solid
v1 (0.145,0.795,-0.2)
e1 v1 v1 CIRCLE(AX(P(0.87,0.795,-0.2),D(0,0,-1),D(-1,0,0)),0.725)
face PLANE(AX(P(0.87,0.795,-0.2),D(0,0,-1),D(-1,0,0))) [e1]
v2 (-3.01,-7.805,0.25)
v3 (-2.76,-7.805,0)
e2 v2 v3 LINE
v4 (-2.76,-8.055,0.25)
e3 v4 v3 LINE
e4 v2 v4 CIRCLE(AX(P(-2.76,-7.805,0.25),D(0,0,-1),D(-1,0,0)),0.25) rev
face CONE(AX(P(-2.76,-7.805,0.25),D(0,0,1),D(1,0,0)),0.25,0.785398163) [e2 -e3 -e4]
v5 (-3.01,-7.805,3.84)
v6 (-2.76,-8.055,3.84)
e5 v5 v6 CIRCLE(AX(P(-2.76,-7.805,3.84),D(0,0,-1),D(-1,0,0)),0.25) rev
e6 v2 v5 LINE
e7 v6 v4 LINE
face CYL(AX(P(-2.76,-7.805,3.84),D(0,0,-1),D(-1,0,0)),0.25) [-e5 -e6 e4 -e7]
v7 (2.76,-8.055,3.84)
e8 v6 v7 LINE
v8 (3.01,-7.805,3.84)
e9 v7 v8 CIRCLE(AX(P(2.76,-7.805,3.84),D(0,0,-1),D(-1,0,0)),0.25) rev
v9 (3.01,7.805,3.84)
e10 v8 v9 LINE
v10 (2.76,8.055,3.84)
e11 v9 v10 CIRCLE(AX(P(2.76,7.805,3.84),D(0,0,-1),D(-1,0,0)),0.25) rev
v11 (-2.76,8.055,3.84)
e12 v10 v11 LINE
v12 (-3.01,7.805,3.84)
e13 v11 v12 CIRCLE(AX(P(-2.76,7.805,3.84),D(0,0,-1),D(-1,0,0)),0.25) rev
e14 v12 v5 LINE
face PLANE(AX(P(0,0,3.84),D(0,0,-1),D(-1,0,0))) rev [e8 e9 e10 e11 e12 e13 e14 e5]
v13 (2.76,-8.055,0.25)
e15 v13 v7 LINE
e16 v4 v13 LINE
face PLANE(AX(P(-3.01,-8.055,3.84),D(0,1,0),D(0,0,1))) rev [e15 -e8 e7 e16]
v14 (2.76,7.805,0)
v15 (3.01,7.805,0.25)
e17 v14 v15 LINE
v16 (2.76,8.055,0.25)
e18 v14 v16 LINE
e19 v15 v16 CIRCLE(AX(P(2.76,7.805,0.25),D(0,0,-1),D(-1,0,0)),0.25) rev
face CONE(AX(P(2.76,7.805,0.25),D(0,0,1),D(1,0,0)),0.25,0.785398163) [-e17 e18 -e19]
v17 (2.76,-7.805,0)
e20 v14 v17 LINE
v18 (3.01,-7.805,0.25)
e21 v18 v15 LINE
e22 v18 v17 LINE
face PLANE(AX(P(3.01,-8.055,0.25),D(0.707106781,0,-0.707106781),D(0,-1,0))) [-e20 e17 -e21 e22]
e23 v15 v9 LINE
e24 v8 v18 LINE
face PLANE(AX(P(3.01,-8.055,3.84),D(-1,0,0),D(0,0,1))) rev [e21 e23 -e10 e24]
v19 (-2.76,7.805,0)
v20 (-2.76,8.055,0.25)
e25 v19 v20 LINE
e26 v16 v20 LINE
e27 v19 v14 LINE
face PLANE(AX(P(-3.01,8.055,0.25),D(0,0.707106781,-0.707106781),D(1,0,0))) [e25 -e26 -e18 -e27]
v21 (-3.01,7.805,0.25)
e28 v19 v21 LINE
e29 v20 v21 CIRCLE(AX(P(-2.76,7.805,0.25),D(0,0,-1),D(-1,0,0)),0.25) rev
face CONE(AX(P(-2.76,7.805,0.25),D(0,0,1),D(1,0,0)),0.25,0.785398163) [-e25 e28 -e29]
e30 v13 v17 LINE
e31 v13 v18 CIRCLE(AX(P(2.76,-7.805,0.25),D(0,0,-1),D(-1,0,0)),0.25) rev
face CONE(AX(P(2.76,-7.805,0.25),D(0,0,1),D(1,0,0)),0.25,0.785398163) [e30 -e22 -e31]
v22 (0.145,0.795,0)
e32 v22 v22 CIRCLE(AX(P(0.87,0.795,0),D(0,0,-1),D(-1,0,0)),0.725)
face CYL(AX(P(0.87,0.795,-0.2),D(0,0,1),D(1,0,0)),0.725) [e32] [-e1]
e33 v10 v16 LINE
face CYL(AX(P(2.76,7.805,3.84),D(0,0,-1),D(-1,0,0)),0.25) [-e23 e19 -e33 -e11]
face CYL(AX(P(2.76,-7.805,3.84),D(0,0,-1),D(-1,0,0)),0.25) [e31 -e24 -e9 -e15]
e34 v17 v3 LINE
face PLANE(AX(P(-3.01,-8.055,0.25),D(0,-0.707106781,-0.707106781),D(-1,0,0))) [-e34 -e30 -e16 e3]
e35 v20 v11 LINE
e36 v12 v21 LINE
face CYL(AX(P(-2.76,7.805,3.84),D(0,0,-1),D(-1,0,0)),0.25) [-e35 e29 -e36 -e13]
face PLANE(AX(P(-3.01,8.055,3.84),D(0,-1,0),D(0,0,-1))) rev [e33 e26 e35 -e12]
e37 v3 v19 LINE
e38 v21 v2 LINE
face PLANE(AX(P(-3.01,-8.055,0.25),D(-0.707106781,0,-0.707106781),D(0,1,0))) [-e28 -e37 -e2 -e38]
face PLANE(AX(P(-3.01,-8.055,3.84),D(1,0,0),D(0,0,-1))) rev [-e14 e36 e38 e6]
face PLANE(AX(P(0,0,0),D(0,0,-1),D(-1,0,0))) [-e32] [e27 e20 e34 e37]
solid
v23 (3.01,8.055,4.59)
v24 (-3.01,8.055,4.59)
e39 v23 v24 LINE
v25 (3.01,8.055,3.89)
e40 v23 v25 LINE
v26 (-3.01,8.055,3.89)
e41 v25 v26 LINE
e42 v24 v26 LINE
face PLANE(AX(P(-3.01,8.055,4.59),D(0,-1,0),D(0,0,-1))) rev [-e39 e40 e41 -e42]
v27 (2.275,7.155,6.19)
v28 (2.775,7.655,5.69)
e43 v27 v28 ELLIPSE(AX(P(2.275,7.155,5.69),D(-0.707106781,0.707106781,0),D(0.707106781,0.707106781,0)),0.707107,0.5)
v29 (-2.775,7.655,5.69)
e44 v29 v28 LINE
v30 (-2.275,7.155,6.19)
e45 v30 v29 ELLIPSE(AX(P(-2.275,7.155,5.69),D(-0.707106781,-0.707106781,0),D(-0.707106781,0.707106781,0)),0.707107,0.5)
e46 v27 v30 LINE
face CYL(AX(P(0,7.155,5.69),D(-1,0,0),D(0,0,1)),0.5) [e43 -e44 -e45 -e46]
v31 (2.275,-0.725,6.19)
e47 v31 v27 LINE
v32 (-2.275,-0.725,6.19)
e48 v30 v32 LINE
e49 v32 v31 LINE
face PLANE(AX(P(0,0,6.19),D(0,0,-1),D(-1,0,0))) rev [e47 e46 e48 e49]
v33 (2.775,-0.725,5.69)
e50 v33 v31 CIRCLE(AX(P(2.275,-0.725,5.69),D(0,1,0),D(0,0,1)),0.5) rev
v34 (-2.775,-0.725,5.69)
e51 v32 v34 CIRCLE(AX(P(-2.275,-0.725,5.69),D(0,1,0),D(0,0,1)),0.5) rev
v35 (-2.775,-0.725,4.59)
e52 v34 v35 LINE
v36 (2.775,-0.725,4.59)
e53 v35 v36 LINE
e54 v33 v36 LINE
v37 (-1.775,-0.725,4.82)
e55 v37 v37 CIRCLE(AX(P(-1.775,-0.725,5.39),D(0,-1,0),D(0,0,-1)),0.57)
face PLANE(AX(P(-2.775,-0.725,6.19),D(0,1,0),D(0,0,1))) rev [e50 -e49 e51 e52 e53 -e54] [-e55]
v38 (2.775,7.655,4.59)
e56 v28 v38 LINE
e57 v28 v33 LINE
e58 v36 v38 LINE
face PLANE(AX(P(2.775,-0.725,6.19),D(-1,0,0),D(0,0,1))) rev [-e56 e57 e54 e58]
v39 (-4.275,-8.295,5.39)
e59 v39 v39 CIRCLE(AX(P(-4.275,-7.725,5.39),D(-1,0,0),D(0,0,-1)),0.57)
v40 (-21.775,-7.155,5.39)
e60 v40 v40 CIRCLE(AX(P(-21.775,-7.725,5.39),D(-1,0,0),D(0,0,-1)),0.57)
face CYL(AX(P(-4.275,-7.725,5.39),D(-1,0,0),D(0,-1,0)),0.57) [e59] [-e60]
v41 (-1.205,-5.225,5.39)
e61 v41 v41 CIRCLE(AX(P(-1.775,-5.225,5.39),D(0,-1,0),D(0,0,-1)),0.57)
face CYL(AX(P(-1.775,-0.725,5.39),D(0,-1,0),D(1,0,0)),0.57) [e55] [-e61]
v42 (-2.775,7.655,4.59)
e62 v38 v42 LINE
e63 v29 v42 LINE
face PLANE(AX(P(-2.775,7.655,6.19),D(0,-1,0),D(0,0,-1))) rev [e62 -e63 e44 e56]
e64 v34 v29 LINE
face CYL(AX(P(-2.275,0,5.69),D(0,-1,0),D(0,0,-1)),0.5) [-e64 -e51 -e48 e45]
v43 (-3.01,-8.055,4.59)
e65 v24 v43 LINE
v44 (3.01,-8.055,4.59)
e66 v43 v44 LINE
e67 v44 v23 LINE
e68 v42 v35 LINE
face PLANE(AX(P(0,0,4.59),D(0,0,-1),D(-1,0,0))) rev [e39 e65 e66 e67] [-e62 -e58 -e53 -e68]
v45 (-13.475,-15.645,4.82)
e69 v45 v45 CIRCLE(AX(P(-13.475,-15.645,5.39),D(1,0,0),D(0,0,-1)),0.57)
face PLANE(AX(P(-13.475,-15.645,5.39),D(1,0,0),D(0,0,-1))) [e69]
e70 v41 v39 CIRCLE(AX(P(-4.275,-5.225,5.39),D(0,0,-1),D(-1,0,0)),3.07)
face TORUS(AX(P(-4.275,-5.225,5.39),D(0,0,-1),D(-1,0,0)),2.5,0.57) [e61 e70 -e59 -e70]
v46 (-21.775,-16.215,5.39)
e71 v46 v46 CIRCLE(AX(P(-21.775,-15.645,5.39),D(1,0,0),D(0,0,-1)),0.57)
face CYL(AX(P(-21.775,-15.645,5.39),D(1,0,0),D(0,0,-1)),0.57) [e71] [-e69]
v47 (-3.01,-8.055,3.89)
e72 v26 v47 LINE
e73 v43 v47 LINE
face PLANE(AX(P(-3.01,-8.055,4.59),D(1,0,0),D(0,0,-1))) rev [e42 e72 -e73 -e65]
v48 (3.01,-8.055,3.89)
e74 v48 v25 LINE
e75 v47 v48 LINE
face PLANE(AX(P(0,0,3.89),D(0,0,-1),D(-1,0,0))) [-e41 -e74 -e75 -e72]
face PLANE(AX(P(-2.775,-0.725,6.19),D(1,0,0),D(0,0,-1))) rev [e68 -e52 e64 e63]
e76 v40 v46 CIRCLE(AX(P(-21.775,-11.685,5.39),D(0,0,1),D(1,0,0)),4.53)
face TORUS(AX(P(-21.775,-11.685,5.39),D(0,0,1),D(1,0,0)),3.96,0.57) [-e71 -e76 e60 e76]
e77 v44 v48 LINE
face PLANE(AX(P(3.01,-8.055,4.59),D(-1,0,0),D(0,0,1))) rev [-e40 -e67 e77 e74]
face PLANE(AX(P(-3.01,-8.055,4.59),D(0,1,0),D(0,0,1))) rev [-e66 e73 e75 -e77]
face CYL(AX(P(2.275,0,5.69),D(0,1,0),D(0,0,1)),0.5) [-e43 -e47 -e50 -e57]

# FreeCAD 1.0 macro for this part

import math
import FreeCAD as App
import Part
import Sketcher
from FreeCAD import Vector
Q = App.Units.Quantity


def edges_at(feature, points):
    """Names of the edges that pass closest to the given points."""
    edges = feature.Shape.Edges
    near = lambda p: min(range(len(edges)), key=lambda i: edges[i].distToShape(Part.Vertex(*p))[0])
    return sorted({f"Edge{near(p) + 1}" for p in points})


def add_polygon(sketch, points):
    """Adds a closed chain of lines whose ends are joined by coincident constraints."""
    first, n = sketch.GeometryCount, len(points)
    for a, b in zip(points, points[1:] + points[:1]):
        sketch.addGeometry(Part.LineSegment(App.Vector(*a, 0), App.Vector(*b, 0)), False)
    for i in range(n):
        sketch.addConstraint(Sketcher.Constraint("Coincident", first + i, 2, first + (i + 1) % n, 1))

doc = App.newDocument("Part")
params = doc.addObject("Spreadsheet::Sheet", "Params")
for row, (alias, value) in enumerate([
    ("sketch1_width", "6.02 mm"),
    ("sketch1_height", "16.11 mm"),
    ("pad1_length", "3.84 mm"),
    ("sketch2_diameter", "1.45 mm"),
    ("pad2_length", "0.2 mm"),
    ("fillet_radius", "0.25 mm"),
    ("chamfer_size", "0.25 mm"),
    ("sketch3_width", "6.02 mm"),
    ("sketch3_height", "16.11 mm"),
    ("pad3_length", "0.7 mm"),
    ("sketch4_width", "5.55 mm"),
    ("sketch4_height", "8.38 mm"),
    ("pad4_length", "1.6 mm"),
    ("fillet2_radius", "0.5 mm"),
    ("sketch5_diameter", "1.14 mm"),
    ("sketch6_radius", "2.5 mm"),
    ("sketch6_radius2", "3.96 mm"),
    ("sketch6_width", "17.5 mm"),
    ("sketch6_width2", "8.3 mm"),
    ("sketch6_height", "4.5 mm"),
], start=1):
    params.set(f"A{row}", alias)
    params.set(f"B{row}", "=" + value)
    params.setAlias(f"B{row}", alias)

body = doc.addObject("PartDesign::Body", "Body")

sketch1 = doc.addObject("Sketcher::SketchObject", "Sketch")
body.addObject(sketch1)
sketch1.AttachmentSupport = (doc.XY_Plane, [""])
sketch1.MapMode = "FlatFace"
add_polygon(sketch1, [(-3, 8), (-3, -8), (3, -8), (3, 8)])
sketch1.addConstraint(Sketcher.Constraint("Vertical", 0))
sketch1.addConstraint(Sketcher.Constraint("Horizontal", 1))
sketch1.addConstraint(Sketcher.Constraint("Vertical", 2))
sketch1.addConstraint(Sketcher.Constraint("Horizontal", 3))
sketch1.addConstraint(Sketcher.Constraint("Symmetric", 0, 2, 2, 2, -1, 1))
sketch1.addConstraint(Sketcher.Constraint("DistanceX", 1, 1, 1, 2, Q("6.02 mm")))
sketch1.addConstraint(Sketcher.Constraint("DistanceY", 0, 2, 0, 1, Q("16.11 mm")))
sketch1.setExpression("Constraints[9]", "Params.sketch1_width")
sketch1.setExpression("Constraints[10]", "Params.sketch1_height")
pad1 = doc.addObject("PartDesign::Pad", "Pad")
body.addObject(pad1)
pad1.Profile = sketch1
pad1.setExpression("Length", "Params.pad1_length")

sketch2 = doc.addObject("Sketcher::SketchObject", "Sketch001")
body.addObject(sketch2)
sketch2.AttachmentSupport = (doc.XY_Plane, [""])
sketch2.MapMode = "FlatFace"
sketch2.addGeometry(Part.Circle(Vector(0.9, 0.8, 0), Vector(0, 0, 1), 0.7), False)
sketch2.addConstraint(Sketcher.Constraint("Diameter", 0, Q("1.45 mm")))
sketch2.addConstraint(Sketcher.Constraint("DistanceX", -1, 1, 0, 3, Q("0.87 mm")))
sketch2.addConstraint(Sketcher.Constraint("DistanceY", -1, 1, 0, 3, Q("0.795 mm")))
sketch2.setExpression("Constraints[0]", "Params.sketch2_diameter")
pad2 = doc.addObject("PartDesign::Pad", "Pad001")
body.addObject(pad2)
pad2.Profile = sketch2
pad2.setExpression("Length", "Params.pad2_length")
pad2.Reversed = True
doc.recompute()

fillet = doc.addObject("PartDesign::Fillet", "Fillet")
body.addObject(fillet)
fillet.Base = (pad2, edges_at(pad2, [
    (3.01, -8.055, 1.92),
    (-3.01, -8.055, 1.92),
    (-3.01, 8.055, 1.92),
    (3.01, 8.055, 1.92),
]))
fillet.setExpression("Radius", "Params.fillet_radius")
doc.recompute()

chamfer = doc.addObject("PartDesign::Chamfer", "Chamfer")
body.addObject(chamfer)
chamfer.Base = (fillet, edges_at(fillet, [
    (0, -8.055, 0),
    (3.01, 0, 0),
    (-3.01, 0, 0),
    (0, 8.055, 0),
    (-2.937, 7.982, 0),
    (2.937, 7.982, 0),
    (2.937, -7.982, 0),
    (-2.937, -7.982, 0),
]))
chamfer.setExpression("Size", "Params.chamfer_size")
body2 = doc.addObject("PartDesign::Body", "Body001")

sketch3 = doc.addObject("Sketcher::SketchObject", "Sketch002")
body2.addObject(sketch3)
sketch3.AttachmentSupport = (doc.getObject("XY_Plane001"), [""])
sketch3.MapMode = "FlatFace"
sketch3.AttachmentOffset = App.Placement(Vector(0, 0, 3.89), App.Rotation())
add_polygon(sketch3, [(-3, 8), (-3, -8), (3, -8), (3, 8)])
sketch3.addConstraint(Sketcher.Constraint("Vertical", 0))
sketch3.addConstraint(Sketcher.Constraint("Horizontal", 1))
sketch3.addConstraint(Sketcher.Constraint("Vertical", 2))
sketch3.addConstraint(Sketcher.Constraint("Horizontal", 3))
sketch3.addConstraint(Sketcher.Constraint("Symmetric", 0, 2, 2, 2, -1, 1))
sketch3.addConstraint(Sketcher.Constraint("DistanceX", 1, 1, 1, 2, Q("6.02 mm")))
sketch3.addConstraint(Sketcher.Constraint("DistanceY", 0, 2, 0, 1, Q("16.11 mm")))
sketch3.setExpression("Constraints[9]", "Params.sketch3_width")
sketch3.setExpression("Constraints[10]", "Params.sketch3_height")
pad3 = doc.addObject("PartDesign::Pad", "Pad002")
body2.addObject(pad3)
pad3.Profile = sketch3
pad3.setExpression("Length", "Params.pad3_length")

sketch4 = doc.addObject("Sketcher::SketchObject", "Sketch003")
body2.addObject(sketch4)
sketch4.AttachmentSupport = (doc.getObject("XY_Plane001"), [""])
sketch4.MapMode = "FlatFace"
sketch4.AttachmentOffset = App.Placement(Vector(0, 0, 4.59), App.Rotation())
add_polygon(sketch4, [(-3, 8), (-3, -1), (3, -1), (3, 8)])
sketch4.addConstraint(Sketcher.Constraint("Vertical", 0))
sketch4.addConstraint(Sketcher.Constraint("Horizontal", 1))
sketch4.addConstraint(Sketcher.Constraint("Vertical", 2))
sketch4.addConstraint(Sketcher.Constraint("Horizontal", 3))
sketch4.addConstraint(Sketcher.Constraint("DistanceX", 1, 1, 1, 2, Q("5.55 mm")))
sketch4.addConstraint(Sketcher.Constraint("DistanceY", 0, 2, 0, 1, Q("8.38 mm")))
sketch4.addConstraint(Sketcher.Constraint("DistanceX", 0, 2, -1, 1, Q("2.775 mm")))
sketch4.addConstraint(Sketcher.Constraint("DistanceY", 0, 2, -1, 1, Q("0.725 mm")))
sketch4.setExpression("Constraints[8]", "Params.sketch4_width")
sketch4.setExpression("Constraints[9]", "Params.sketch4_height")
pad4 = doc.addObject("PartDesign::Pad", "Pad003")
body2.addObject(pad4)
pad4.Profile = sketch4
pad4.setExpression("Length", "Params.pad4_length")
doc.recompute()

fillet2 = doc.addObject("PartDesign::Fillet", "Fillet001")
body2.addObject(fillet2)
fillet2.Base = (pad4, edges_at(pad4, [(2.775, 3.465, 6.19), (0, 7.655, 6.19), (-2.775, 3.465, 6.19)]))
fillet2.setExpression("Radius", "Params.fillet2_radius")

sketch5 = doc.addObject("Sketcher::SketchObject", "Sketch004")
body2.addObject(sketch5)
sketch5.AttachmentSupport = (doc.getObject("XZ_Plane001"), [""])
sketch5.MapMode = "FlatFace"
sketch5.AttachmentOffset = App.Placement(Vector(0, 0, 0.725), App.Rotation())
sketch5.addGeometry(Part.Circle(Vector(-1.8, 5.4, 0), Vector(0, 0, 1), 0.6), False)
sketch5.addConstraint(Sketcher.Constraint("Diameter", 0, Q("1.14 mm")))
sketch5.addConstraint(Sketcher.Constraint("DistanceY", -1, 1, 0, 3, Q("5.39 mm")))
sketch5.addConstraint(Sketcher.Constraint("DistanceX", 0, 3, -1, 1, Q("1.775 mm")))
sketch5.setExpression("Constraints[0]", "Params.sketch5_diameter")

sketch6 = doc.addObject("Sketcher::SketchObject", "Sketch005")
body2.addObject(sketch6)
sketch6.AttachmentSupport = (doc.getObject("XY_Plane001"), [""])
sketch6.MapMode = "FlatFace"
sketch6.AttachmentOffset = App.Placement(Vector(0, 0, 5.39), App.Rotation())
sketch6.addGeometry(Part.LineSegment(Vector(-1.8, -0.7, 0), Vector(-1.8, -5.2, 0)), False)
sketch6.addGeometry(Part.ArcOfCircle(Part.Circle(Vector(-4.3, -5.2, 0), Vector(0, 0, 1), 2.5), math.radians(-90), math.radians(0)), False)
sketch6.addGeometry(Part.LineSegment(Vector(-4.3, -7.7, 0), Vector(-21.8, -7.7, 0)), False)
sketch6.addGeometry(Part.ArcOfCircle(Part.Circle(Vector(-21.8, -11.7, 0), Vector(0, 0, 1), 4), math.radians(90), math.radians(270)), False)
sketch6.addGeometry(Part.LineSegment(Vector(-21.8, -15.6, 0), Vector(-13.5, -15.6, 0)), False)
sketch6.addConstraint(Sketcher.Constraint("Tangent", 0, 2, 1, 2))
sketch6.addConstraint(Sketcher.Constraint("Tangent", 1, 1, 2, 1))
sketch6.addConstraint(Sketcher.Constraint("Tangent", 2, 2, 3, 1))
sketch6.addConstraint(Sketcher.Constraint("Tangent", 3, 2, 4, 1))
sketch6.addConstraint(Sketcher.Constraint("Vertical", 0))
sketch6.addConstraint(Sketcher.Constraint("Horizontal", 2))
sketch6.addConstraint(Sketcher.Constraint("Horizontal", 4))
sketch6.addConstraint(Sketcher.Constraint("Radius", 1, Q("2.5 mm")))
sketch6.addConstraint(Sketcher.Constraint("Radius", 3, Q("3.96 mm")))
sketch6.addConstraint(Sketcher.Constraint("DistanceX", 2, 2, 2, 1, Q("17.5 mm")))
sketch6.addConstraint(Sketcher.Constraint("DistanceX", 4, 1, 4, 2, Q("8.3 mm")))
sketch6.addConstraint(Sketcher.Constraint("DistanceY", 0, 2, 0, 1, Q("4.5 mm")))
sketch6.addConstraint(Sketcher.Constraint("DistanceX", 1, 3, -1, 1, Q("4.275 mm")))
sketch6.addConstraint(Sketcher.Constraint("DistanceY", 1, 3, -1, 1, Q("5.225 mm")))
sketch6.setExpression("Constraints[7]", "Params.sketch6_radius")
sketch6.setExpression("Constraints[8]", "Params.sketch6_radius2")
sketch6.setExpression("Constraints[9]", "Params.sketch6_width")
sketch6.setExpression("Constraints[10]", "Params.sketch6_width2")
sketch6.setExpression("Constraints[11]", "Params.sketch6_height")
doc.recompute()

additivepipe = doc.addObject("PartDesign::AdditivePipe", "AdditivePipe")
body2.addObject(additivepipe)
additivepipe.Profile = sketch5
additivepipe.Spine = (sketch6, ["Edge1", "Edge2", "Edge3", "Edge4", "Edge5"])

doc.recompute()
